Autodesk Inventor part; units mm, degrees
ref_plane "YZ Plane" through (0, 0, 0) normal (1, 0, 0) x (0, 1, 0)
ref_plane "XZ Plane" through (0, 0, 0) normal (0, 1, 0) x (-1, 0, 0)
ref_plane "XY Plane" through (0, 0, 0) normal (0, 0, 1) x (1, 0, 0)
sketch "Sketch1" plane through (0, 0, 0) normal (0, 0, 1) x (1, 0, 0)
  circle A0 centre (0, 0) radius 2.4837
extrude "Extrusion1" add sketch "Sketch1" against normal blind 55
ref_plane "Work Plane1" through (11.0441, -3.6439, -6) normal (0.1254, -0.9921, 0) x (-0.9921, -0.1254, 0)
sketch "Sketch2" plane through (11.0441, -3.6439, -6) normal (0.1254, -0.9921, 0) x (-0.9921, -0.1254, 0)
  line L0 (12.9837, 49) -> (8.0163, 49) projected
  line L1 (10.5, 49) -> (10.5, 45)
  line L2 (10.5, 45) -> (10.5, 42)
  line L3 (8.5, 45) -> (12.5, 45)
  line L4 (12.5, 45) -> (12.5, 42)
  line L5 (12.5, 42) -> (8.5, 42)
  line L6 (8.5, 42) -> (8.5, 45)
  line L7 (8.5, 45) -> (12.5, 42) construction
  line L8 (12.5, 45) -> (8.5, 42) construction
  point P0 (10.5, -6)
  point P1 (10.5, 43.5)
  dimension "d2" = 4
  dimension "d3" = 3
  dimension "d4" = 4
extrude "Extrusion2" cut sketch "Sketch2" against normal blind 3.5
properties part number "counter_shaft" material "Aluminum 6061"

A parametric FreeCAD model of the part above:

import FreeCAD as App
import Part
import Sketcher

V = App.Vector


def add_polygon(sketch, points):
    """Adds a closed chain of lines whose ends are joined by coincident constraints."""
    first, n = sketch.GeometryCount, len(points)
    for a, b in zip(points, points[1:] + points[:1]):
        sketch.addGeometry(Part.LineSegment(App.Vector(*a, 0), App.Vector(*b, 0)), False)
    for i in range(n):
        sketch.addConstraint(Sketcher.Constraint("Coincident", first + i, 2, first + (i + 1) % n, 1))

doc = App.newDocument("Part")
body = doc.addObject("PartDesign::Body", "Body")

# Sketch on XY plane
sketch1 = body.newObject("Sketcher::SketchObject", "Sketch")
sketch1.AttachmentSupport = (doc.getObject("XY_Plane"), [""])
sketch1.MapMode = "FlatFace"
sketch1.addGeometry(Part.Circle(V(0, 0, 0), V(0, 0, 1), 2.5), False)
sketch1.addConstraint([
    Sketcher.Constraint("Coincident", 0, 3, -1, 1),
    Sketcher.Constraint("Diameter", 0, 4.9674),
])
pad1 = body.newObject("PartDesign::Pad", "Pad")
pad1.Profile = sketch1
pad1.Length = 55
pad1.Reversed = True

# Sketch on an angled plane
sketch2 = body.newObject("Sketcher::SketchObject", "Sketch001")
sketch2.Placement = App.Placement(V(11.0441, -3.6439, -6), App.Rotation(V(-0.992106166, -0.125400779, 0), V(0, 0, -1), V(0.125400779, -0.992106166, 0), "ZXY"))
add_polygon(sketch2, [(12.5, 45), (8.5, 45), (8.5, 42), (12.5, 42)])  # lines 0-3
sketch2.addConstraint([
    Sketcher.Constraint("Horizontal", 0),
    Sketcher.Constraint("Vertical", 1),
    Sketcher.Constraint("Horizontal", 2),
    Sketcher.Constraint("Vertical", 3),
    Sketcher.Constraint("DistanceX", 0, 2, 0, 1, 4.0),
    Sketcher.Constraint("DistanceY", 1, 2, 1, 1, 3.0),
    Sketcher.Constraint("DistanceY", -1, 1, 0, 2, 45.0),
    Sketcher.Constraint("DistanceX", -1, 1, 0, 2, 8.5),
])
pocket1 = body.newObject("PartDesign::Pocket", "Pocket")
pocket1.Profile = sketch2
pocket1.Length = 3.5

doc.recompute()
